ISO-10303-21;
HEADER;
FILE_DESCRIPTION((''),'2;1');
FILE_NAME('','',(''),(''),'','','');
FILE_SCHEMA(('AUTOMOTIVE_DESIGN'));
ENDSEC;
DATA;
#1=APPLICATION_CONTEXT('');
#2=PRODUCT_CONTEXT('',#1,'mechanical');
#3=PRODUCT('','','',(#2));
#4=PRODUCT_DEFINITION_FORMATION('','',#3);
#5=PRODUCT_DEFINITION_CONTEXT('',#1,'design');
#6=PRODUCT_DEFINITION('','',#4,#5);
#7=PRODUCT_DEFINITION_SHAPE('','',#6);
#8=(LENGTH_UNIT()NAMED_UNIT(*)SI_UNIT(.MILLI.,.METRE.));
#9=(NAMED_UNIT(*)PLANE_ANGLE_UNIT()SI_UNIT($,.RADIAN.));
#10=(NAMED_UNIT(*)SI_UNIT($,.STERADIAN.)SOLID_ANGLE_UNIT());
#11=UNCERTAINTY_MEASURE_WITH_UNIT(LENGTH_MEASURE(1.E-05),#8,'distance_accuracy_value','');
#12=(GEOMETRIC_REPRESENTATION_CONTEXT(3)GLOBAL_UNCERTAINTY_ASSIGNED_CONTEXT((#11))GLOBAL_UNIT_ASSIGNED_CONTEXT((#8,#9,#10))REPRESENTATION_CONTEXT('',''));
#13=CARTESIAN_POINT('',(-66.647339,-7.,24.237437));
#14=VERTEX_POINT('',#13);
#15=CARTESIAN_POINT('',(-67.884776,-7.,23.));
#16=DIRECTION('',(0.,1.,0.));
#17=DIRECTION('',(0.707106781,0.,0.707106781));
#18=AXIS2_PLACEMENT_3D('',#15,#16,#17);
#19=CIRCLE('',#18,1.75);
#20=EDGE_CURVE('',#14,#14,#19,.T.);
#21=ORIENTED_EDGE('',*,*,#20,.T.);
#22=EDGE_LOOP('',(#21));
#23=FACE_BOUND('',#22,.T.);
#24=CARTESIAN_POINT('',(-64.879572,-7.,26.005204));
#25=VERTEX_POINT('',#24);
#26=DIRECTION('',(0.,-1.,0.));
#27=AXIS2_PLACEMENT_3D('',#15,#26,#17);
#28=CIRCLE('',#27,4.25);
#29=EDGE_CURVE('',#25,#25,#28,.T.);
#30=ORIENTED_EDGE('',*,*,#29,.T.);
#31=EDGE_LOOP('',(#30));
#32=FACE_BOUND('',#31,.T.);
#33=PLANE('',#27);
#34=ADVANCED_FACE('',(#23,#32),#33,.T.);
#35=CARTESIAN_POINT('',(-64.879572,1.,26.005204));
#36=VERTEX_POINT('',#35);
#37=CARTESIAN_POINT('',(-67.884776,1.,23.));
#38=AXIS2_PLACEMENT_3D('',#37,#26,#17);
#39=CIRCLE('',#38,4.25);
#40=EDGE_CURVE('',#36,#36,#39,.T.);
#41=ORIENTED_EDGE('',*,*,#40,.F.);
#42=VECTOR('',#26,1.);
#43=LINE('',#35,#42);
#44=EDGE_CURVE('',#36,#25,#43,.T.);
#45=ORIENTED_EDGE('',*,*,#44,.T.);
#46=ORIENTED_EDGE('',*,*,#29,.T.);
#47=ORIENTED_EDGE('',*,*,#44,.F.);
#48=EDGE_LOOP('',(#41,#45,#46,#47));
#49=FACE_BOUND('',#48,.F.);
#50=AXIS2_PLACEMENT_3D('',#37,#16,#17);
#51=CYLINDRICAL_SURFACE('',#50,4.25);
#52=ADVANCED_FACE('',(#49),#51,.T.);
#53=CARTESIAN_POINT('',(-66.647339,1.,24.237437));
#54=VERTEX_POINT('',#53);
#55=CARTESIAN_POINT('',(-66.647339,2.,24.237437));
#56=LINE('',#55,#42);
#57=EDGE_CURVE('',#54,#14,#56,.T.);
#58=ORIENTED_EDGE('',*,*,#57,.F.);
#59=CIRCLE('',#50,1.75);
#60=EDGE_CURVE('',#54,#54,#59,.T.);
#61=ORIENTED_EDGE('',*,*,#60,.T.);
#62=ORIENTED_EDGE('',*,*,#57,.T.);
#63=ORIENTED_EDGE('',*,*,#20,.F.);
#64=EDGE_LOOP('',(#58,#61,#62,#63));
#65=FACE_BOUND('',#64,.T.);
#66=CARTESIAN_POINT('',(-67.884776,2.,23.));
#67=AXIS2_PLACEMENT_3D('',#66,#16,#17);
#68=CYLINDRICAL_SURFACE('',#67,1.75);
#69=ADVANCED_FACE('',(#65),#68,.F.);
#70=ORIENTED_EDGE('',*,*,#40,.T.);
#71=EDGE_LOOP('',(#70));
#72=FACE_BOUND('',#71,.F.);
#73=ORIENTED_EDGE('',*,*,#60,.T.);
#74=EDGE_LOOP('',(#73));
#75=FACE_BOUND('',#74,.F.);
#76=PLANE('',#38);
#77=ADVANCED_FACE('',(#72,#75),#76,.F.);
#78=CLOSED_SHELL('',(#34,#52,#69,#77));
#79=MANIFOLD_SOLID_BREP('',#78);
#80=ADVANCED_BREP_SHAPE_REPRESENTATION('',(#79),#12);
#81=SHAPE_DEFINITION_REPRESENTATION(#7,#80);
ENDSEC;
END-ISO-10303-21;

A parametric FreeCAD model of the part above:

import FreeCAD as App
import Part
import Sketcher

V = App.Vector

doc = App.newDocument("Part")
params = doc.addObject("Spreadsheet::Sheet", "Params")
for row, (alias, value) in enumerate([
    ("sketch1_diameter", "3.5 mm"),
    ("pad1_length", "10 mm"),
    ("sketch2_diameter", "8.5 mm"),
    ("pad2_length", "8 mm"),
], start=1):
    params.set(f"A{row}", alias)
    params.set(f"B{row}", "=" + value)
    params.setAlias(f"B{row}", alias)

body = doc.addObject("PartDesign::Body", "Body")

sketch1 = body.newObject("Sketcher::SketchObject", "Sketch")
sketch1.AttachmentSupport = (doc.getObject("XY_Plane"), [""])
sketch1.MapMode = "FlatFace"
sketch1.AttachmentOffset = App.Placement(V(0, 0, -1), App.Rotation())
sketch1.addGeometry(Part.Circle(V(0, 0, 0), V(0, 0, 1), 1.75), False)
sketch1.addConstraint([
    Sketcher.Constraint("Coincident", 0, 3, -1, 1),
    Sketcher.Constraint("Diameter", 0, 3.5),
])
sketch1.setExpression("Constraints[1]", "Params.sketch1_diameter")
pad1 = body.newObject("PartDesign::Pad", "Pad")
pad1.Profile = sketch1
pad1.setExpression("Length", "Params.pad1_length")
body2 = doc.addObject("PartDesign::Body", "Body001")

sketch2 = body2.newObject("Sketcher::SketchObject", "Sketch001")
sketch2.AttachmentSupport = (doc.getObject("XY_Plane001"), [""])
sketch2.MapMode = "FlatFace"
sketch2.addGeometry(Part.Circle(V(0, 0, 0), V(0, 0, 1), 4.25), False)
sketch2.addConstraint([
    Sketcher.Constraint("Coincident", 0, 3, -1, 1),
    Sketcher.Constraint("Diameter", 0, 8.5),
])
sketch2.setExpression("Constraints[1]", "Params.sketch2_diameter")
pad2 = body2.newObject("PartDesign::Pad", "Pad001")
pad2.Profile = sketch2
pad2.setExpression("Length", "Params.pad2_length")
doc.recompute()

boolean = body2.newObject("PartDesign::Boolean", "Boolean")
boolean.Type = "Cut"
boolean.addObjects([body])
body3 = doc.addObject("PartDesign::Body", "Body002")
doc.recompute()

body2.Placement = App.Placement(V(0, 0, 0), App.Rotation(V(1, 0, 0), 90))
boolean2 = body3.newObject("PartDesign::Boolean", "Boolean001")
boolean2.Type = "Fuse"
boolean2.addObjects([body2])
body4 = doc.addObject("PartDesign::Body", "Body003")
doc.recompute()

body3.Placement = App.Placement(V(0, 0, 0), App.Rotation(V(0, 1, 0), 315))
boolean3 = body4.newObject("PartDesign::Boolean", "Boolean002")
boolean3.Type = "Fuse"
boolean3.addObjects([body3])
body5 = doc.addObject("PartDesign::Body", "Body004")
doc.recompute()

body4.Placement = App.Placement(V(-67.884776, 1, 23), App.Rotation(V(0, 0, 1), 0))
boolean4 = body5.newObject("PartDesign::Boolean", "Boolean003")
boolean4.Type = "Fuse"
boolean4.addObjects([body4])

doc.recompute()
